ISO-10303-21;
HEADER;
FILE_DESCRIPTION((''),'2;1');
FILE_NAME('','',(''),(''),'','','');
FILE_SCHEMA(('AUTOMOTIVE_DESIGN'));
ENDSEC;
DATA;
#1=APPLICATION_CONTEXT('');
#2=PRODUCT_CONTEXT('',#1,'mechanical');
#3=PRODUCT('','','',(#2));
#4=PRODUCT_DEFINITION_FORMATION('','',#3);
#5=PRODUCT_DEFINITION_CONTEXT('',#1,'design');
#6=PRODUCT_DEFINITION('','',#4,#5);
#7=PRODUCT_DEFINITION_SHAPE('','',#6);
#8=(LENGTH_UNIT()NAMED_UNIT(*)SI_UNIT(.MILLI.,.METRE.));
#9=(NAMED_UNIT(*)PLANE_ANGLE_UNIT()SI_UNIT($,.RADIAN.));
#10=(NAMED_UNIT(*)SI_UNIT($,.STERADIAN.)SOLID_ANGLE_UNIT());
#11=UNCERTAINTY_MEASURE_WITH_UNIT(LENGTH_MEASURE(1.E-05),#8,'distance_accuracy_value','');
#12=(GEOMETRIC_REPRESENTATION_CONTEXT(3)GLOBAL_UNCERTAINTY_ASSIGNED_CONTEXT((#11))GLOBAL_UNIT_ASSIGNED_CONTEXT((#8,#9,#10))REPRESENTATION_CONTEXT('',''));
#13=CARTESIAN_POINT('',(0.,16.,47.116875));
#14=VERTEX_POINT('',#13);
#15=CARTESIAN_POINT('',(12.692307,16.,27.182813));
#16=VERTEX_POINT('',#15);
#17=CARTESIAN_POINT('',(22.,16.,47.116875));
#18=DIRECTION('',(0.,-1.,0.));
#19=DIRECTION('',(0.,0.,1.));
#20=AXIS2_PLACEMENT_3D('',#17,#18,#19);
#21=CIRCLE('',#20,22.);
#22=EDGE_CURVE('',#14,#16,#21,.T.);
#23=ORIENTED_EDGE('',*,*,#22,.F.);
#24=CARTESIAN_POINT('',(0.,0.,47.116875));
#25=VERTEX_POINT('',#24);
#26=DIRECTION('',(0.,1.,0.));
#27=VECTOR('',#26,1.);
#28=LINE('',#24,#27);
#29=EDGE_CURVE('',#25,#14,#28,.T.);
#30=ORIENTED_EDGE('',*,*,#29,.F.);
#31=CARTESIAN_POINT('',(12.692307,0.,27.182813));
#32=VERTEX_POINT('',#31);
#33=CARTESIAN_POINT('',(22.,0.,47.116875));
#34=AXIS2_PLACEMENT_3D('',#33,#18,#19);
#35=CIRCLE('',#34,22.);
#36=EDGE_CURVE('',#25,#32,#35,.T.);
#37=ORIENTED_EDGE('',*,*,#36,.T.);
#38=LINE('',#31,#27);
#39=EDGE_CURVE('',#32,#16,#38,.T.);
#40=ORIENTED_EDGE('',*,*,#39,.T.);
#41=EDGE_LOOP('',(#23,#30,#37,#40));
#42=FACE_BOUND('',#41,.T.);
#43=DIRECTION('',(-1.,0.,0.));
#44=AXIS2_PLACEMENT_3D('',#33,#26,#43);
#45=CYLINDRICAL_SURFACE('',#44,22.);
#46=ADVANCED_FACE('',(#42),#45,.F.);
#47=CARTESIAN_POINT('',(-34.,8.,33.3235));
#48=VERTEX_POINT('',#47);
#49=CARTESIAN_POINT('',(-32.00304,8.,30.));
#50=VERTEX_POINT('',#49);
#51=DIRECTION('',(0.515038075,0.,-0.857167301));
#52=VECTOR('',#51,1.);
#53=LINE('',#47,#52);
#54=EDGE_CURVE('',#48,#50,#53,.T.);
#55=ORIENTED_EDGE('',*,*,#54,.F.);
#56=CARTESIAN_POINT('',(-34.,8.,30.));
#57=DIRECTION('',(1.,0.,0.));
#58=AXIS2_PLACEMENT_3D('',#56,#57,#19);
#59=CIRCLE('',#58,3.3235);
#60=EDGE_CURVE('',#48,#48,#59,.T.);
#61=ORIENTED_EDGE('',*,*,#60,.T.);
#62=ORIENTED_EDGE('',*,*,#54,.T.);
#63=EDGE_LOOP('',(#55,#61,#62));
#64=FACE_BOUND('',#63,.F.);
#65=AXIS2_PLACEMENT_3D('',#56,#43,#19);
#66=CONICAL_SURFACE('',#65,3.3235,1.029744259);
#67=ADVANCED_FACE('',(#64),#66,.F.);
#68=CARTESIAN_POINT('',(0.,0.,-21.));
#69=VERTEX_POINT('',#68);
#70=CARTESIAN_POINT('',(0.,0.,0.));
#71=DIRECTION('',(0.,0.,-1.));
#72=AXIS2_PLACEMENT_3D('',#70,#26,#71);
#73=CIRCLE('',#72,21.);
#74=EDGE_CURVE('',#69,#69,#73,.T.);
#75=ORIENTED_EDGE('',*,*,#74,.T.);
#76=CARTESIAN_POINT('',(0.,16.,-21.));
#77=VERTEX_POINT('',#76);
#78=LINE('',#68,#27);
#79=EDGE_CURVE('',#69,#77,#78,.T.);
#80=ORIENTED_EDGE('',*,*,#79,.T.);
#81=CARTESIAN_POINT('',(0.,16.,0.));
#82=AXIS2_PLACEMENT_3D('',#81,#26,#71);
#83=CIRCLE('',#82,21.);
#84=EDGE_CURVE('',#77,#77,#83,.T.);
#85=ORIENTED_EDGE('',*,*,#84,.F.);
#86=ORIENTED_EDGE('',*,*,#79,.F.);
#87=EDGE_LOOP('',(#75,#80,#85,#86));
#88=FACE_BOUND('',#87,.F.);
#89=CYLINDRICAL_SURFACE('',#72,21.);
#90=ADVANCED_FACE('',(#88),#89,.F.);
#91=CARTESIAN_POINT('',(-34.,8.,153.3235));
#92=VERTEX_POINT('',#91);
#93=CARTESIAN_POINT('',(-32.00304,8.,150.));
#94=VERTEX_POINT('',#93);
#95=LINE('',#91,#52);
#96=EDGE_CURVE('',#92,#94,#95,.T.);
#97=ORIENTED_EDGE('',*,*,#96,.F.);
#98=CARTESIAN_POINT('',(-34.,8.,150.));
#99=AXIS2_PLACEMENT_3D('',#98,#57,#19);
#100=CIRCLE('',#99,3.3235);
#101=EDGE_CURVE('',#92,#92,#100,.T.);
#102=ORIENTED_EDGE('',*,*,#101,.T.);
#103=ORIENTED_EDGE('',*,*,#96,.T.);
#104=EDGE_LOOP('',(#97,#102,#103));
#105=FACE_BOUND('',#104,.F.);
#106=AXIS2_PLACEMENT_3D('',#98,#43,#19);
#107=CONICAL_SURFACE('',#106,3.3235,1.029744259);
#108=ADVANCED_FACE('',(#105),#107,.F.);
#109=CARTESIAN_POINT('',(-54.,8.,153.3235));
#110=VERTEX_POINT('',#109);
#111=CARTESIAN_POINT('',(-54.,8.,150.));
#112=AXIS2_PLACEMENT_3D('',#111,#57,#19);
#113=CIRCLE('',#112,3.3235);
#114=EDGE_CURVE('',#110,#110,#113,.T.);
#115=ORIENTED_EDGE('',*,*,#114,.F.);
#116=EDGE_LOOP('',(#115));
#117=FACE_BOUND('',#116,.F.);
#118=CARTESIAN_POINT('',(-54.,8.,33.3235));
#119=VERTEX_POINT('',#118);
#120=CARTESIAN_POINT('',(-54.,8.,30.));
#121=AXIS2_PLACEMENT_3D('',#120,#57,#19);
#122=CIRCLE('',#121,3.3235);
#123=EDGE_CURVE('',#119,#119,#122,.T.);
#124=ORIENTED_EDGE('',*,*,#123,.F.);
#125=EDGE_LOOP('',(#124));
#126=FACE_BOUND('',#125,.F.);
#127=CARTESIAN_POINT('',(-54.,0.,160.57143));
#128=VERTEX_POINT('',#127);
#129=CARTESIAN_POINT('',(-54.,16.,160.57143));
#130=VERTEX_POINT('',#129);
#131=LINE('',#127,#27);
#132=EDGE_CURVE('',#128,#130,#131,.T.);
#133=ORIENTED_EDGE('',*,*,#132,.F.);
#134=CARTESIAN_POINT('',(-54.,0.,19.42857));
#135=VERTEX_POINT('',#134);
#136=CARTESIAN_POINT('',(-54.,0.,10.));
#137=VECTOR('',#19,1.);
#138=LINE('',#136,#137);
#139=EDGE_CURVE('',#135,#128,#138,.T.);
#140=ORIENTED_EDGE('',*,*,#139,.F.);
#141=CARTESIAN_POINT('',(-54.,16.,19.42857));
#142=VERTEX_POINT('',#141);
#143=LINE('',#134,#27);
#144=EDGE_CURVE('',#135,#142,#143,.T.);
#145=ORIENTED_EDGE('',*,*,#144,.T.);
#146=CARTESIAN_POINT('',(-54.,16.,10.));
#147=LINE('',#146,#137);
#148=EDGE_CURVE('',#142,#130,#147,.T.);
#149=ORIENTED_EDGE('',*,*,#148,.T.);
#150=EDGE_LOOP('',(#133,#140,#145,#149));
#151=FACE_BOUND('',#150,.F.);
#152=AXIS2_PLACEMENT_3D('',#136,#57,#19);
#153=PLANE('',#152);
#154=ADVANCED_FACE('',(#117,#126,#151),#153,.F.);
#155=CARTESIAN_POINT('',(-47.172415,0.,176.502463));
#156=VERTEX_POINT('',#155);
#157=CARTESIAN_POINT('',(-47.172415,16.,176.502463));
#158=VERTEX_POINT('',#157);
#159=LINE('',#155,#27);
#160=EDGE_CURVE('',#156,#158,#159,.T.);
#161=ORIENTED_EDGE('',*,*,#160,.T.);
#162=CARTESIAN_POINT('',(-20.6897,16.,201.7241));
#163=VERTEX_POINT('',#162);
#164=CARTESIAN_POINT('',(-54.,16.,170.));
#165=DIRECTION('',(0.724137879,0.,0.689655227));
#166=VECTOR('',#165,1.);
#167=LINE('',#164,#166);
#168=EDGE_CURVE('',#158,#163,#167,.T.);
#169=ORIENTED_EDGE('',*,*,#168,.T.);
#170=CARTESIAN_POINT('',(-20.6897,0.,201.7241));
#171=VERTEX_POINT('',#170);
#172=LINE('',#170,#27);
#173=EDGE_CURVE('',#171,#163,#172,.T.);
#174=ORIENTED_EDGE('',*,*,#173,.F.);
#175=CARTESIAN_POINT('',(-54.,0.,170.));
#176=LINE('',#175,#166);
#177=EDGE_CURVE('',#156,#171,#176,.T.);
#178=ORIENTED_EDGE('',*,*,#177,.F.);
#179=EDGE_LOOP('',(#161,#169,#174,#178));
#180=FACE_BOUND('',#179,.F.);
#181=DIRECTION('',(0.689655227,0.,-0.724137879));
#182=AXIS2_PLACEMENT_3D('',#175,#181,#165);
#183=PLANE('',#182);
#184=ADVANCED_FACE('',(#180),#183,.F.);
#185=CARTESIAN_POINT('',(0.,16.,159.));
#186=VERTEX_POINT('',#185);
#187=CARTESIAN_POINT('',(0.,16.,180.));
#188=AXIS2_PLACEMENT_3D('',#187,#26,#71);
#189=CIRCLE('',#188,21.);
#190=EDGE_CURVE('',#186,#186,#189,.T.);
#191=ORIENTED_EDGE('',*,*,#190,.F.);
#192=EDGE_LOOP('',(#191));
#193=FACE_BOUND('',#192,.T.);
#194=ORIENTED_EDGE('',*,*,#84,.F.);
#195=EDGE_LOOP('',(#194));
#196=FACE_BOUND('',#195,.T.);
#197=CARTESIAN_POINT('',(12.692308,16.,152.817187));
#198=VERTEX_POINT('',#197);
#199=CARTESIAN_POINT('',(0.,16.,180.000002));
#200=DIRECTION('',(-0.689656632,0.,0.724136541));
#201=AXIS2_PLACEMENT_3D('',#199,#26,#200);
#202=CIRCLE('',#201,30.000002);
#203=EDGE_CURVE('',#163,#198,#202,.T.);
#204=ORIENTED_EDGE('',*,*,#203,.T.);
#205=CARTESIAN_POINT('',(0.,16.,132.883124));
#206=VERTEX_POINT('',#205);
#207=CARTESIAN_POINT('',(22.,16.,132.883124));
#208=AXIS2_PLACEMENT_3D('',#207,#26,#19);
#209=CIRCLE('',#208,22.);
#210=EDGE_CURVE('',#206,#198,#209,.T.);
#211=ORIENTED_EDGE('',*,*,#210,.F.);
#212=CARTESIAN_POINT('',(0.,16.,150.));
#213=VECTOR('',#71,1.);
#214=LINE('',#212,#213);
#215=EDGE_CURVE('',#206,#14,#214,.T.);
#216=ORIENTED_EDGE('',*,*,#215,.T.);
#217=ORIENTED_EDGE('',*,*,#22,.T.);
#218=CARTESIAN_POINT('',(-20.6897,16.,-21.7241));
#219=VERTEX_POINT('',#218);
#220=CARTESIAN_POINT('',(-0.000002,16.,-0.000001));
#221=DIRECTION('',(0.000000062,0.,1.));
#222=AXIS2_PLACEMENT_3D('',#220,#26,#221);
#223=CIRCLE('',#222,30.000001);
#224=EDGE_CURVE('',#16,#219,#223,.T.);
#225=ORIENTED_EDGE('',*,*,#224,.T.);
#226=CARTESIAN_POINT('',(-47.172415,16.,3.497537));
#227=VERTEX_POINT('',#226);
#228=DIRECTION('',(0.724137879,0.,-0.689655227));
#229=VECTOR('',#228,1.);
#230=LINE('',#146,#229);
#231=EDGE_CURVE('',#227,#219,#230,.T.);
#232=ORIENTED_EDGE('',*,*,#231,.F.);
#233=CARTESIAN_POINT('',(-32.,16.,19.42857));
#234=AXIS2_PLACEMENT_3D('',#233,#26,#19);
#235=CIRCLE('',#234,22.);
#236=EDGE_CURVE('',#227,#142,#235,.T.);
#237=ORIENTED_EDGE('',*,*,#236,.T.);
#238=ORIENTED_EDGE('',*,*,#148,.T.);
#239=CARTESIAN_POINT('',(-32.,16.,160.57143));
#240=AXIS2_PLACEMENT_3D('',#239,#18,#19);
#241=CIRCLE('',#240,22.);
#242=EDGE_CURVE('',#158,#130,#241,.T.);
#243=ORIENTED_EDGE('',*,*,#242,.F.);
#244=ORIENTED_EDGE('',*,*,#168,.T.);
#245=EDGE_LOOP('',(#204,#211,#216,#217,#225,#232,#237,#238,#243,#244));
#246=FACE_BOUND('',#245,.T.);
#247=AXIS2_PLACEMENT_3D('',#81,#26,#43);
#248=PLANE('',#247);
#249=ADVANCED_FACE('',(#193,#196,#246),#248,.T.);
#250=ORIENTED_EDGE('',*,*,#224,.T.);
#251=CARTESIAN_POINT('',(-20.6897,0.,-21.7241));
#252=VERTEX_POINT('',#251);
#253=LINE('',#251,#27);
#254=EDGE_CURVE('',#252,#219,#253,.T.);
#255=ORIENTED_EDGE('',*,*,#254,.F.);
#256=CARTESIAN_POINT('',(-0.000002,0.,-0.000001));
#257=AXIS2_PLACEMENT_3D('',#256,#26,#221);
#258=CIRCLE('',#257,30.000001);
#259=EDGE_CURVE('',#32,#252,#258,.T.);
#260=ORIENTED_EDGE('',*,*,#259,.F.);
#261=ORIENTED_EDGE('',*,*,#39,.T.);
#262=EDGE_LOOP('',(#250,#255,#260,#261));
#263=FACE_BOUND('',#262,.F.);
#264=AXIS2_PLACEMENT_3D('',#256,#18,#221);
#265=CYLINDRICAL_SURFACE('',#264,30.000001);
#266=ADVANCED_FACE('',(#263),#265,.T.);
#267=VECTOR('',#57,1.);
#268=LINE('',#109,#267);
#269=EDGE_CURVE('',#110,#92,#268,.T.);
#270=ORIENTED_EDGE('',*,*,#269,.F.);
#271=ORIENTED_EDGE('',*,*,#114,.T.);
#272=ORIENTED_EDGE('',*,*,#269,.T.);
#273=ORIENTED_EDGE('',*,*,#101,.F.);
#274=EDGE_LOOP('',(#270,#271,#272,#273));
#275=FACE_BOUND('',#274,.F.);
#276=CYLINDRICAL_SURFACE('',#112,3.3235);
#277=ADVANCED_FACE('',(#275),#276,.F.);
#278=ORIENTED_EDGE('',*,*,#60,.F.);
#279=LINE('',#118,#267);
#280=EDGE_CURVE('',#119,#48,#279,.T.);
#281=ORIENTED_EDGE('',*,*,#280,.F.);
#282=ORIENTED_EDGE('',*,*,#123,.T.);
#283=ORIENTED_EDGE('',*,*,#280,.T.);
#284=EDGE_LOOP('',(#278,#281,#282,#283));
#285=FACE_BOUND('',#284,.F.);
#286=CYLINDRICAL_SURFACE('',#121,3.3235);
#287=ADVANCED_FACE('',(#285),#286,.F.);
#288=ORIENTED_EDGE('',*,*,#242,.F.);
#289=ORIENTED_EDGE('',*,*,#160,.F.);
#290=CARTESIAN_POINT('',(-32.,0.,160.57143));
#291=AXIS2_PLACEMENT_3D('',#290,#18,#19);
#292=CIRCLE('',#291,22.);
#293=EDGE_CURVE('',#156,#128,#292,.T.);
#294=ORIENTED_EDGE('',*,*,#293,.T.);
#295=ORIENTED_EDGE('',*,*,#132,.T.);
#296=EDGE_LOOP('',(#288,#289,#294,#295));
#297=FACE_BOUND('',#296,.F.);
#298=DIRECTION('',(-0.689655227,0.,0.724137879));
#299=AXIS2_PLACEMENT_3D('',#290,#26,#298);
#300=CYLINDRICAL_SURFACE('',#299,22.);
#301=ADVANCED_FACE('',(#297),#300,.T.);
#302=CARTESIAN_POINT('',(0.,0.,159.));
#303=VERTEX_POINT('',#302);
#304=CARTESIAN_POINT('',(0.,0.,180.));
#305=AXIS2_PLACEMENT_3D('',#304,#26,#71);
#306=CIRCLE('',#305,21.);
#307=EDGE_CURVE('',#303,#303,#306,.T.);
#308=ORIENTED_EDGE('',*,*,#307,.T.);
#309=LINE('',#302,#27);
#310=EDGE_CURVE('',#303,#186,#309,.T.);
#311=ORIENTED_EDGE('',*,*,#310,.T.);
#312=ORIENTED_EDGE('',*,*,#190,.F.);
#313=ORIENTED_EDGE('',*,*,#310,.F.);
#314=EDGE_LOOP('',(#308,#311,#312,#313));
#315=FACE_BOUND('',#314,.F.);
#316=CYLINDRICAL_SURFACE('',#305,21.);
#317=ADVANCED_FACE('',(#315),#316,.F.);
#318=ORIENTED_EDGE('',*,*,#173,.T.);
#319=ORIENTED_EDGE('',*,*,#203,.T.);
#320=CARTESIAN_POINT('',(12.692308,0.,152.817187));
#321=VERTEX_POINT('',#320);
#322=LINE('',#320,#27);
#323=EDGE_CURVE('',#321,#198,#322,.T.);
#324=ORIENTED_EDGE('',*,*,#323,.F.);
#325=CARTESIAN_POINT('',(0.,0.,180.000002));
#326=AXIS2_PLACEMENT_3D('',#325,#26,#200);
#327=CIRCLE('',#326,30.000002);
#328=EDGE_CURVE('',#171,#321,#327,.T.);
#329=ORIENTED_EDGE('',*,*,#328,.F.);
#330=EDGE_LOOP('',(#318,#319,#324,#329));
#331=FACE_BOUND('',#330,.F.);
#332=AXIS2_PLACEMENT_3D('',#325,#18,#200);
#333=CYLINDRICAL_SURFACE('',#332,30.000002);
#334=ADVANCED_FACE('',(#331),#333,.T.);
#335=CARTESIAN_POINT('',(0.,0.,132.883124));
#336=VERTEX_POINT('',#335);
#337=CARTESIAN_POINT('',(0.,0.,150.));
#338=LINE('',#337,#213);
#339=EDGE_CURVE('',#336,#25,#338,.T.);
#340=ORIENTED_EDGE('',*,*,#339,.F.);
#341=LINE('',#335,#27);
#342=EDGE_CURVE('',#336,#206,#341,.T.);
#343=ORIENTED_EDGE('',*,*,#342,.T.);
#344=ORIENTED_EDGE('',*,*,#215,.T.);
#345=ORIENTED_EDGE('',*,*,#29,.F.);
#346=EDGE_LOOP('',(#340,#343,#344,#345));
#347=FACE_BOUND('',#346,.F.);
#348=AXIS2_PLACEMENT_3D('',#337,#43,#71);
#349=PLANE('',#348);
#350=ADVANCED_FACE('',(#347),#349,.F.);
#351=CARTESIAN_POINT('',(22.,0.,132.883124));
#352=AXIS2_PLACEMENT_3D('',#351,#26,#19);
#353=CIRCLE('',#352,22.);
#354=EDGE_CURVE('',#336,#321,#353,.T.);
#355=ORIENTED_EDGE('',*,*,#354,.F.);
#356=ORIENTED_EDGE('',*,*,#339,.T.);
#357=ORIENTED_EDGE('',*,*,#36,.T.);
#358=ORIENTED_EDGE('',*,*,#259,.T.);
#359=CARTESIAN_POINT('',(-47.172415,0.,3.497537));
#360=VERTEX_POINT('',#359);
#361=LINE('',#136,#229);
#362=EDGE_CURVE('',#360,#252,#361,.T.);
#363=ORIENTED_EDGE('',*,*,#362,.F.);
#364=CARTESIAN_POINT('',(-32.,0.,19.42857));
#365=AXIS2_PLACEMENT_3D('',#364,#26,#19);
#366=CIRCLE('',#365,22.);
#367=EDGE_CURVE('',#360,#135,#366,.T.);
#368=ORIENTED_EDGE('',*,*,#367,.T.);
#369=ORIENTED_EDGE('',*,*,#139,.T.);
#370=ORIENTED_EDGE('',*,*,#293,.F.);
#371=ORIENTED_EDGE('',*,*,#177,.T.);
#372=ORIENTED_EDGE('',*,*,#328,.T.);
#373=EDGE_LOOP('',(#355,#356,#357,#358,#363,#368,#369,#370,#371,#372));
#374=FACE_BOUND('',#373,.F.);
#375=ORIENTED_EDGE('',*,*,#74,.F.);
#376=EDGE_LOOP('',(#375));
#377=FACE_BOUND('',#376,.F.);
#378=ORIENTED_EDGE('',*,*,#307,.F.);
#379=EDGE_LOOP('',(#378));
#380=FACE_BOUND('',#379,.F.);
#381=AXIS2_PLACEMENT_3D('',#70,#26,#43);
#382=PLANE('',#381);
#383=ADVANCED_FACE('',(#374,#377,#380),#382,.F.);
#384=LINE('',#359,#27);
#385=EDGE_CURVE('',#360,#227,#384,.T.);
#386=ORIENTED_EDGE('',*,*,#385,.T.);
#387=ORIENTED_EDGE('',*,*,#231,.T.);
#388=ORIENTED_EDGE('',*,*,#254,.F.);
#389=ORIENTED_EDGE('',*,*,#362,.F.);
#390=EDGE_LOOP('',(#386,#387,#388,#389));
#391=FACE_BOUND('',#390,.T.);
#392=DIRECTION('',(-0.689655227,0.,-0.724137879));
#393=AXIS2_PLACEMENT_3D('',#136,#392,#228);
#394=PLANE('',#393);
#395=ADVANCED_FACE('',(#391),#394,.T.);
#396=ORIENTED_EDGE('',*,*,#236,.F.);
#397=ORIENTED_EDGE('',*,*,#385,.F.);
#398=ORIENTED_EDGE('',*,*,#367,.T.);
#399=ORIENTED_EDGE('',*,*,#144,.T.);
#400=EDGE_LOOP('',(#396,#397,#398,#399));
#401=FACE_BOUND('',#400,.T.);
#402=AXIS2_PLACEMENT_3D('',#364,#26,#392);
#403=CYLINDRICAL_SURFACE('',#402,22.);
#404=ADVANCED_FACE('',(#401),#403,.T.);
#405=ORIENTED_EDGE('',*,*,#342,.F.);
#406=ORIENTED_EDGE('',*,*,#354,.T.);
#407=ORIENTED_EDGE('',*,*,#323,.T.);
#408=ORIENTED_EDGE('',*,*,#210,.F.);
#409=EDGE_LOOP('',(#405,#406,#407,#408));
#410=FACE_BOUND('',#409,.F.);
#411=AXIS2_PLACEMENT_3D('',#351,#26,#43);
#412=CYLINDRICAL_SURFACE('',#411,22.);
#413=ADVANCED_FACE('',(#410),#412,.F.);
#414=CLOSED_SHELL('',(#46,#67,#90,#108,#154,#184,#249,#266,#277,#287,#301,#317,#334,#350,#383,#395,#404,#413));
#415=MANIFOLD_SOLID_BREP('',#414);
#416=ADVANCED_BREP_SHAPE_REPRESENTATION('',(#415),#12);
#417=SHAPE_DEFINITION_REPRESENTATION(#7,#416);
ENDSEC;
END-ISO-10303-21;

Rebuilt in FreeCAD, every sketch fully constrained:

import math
import FreeCAD as App
import Part
import Sketcher

V = App.Vector


def edges_at(feature, points):
    """Names of the edges that pass closest to the given points."""
    edges = feature.Shape.Edges
    near = lambda p: min(range(len(edges)), key=lambda i: edges[i].distToShape(Part.Vertex(*p))[0])
    return sorted({f"Edge{near(p) + 1}" for p in points})

doc = App.newDocument("Part")
body = doc.addObject("PartDesign::Body", "Body")

sketch1 = doc.addObject("Sketcher::SketchObject", "Sketch")
body.addObject(sketch1)
sketch1.AttachmentSupport = (doc.XZ_Plane, [""])
sketch1.MapMode = "FlatFace"
sketch1.addGeometry(Part.LineSegment(V(0, 150, 0), V(0, 30, 0)), False)
sketch1.addGeometry(Part.ArcOfCircle(Part.Circle(V(0, 0, 0), V(0, 0, 1), 30), math.radians(-134), math.radians(90)), False)
sketch1.addGeometry(Part.LineSegment(V(-21, -22, 0), V(-54, 10, 0)), False)
sketch1.addGeometry(Part.LineSegment(V(-54, 10, 0), V(-54, 170, 0)), False)
sketch1.addGeometry(Part.LineSegment(V(-54, 170, 0), V(-21, 202, 0)), False)
sketch1.addGeometry(Part.ArcOfCircle(Part.Circle(V(0, 180, 0), V(0, 0, 1), 30), math.radians(-90), math.radians(134)), False)
sketch1.addConstraint(Sketcher.Constraint("Coincident", 0, 2, 1, 2))
sketch1.addConstraint(Sketcher.Constraint("Tangent", 1, 1, 2, 1))
sketch1.addConstraint(Sketcher.Constraint("Coincident", 2, 2, 3, 1))
sketch1.addConstraint(Sketcher.Constraint("Coincident", 3, 2, 4, 1))
sketch1.addConstraint(Sketcher.Constraint("Tangent", 4, 2, 5, 2))
sketch1.addConstraint(Sketcher.Constraint("Coincident", 5, 1, 0, 1))
sketch1.addConstraint(Sketcher.Constraint("Vertical", 0))
sketch1.addConstraint(Sketcher.Constraint("Vertical", 3))
sketch1.addConstraint(Sketcher.Constraint("Coincident", 1, 3, -1, 1))
sketch1.addConstraint(Sketcher.Constraint("Equal", 1, 5))
sketch1.addConstraint(Sketcher.Constraint("PointOnObject", 5, 3, -2))
sketch1.addConstraint(Sketcher.Constraint("PointOnObject", 0, 2, -2))
sketch1.addConstraint(Sketcher.Constraint("Vertical", 1, 1, 4, 2))
sketch1.addConstraint(Sketcher.Constraint("Radius", 1, 30.0))
sketch1.addConstraint(Sketcher.Constraint("DistanceY", 0, 2, 0, 1, 120.0))
sketch1.addConstraint(Sketcher.Constraint("DistanceY", 3, 1, 3, 2, 160.0))
sketch1.addConstraint(Sketcher.Constraint("Distance", 2, 46.0))
pad1 = doc.addObject("PartDesign::Pad", "Pad")
body.addObject(pad1)
pad1.Profile = sketch1
pad1.Length = 16
pad1.Reversed = True

sketch2 = doc.addObject("Sketcher::SketchObject", "Sketch001")
body.addObject(sketch2)
sketch2.AttachmentSupport = (doc.XZ_Plane, [""])
sketch2.MapMode = "FlatFace"
sketch2.addGeometry(Part.Circle(V(0, 180, 0), V(0, 0, 1), 21), False)
sketch2.addGeometry(Part.Circle(V(0, 0, 0), V(0, 0, 1), 21), False)
sketch2.addConstraint(Sketcher.Constraint("Coincident", 1, 3, -1, 1))
sketch2.addConstraint(Sketcher.Constraint("Equal", 0, 1))
sketch2.addConstraint(Sketcher.Constraint("PointOnObject", 0, 3, -2))
sketch2.addConstraint(Sketcher.Constraint("Diameter", 0, 42.0))
sketch2.addConstraint(Sketcher.Constraint("DistanceY", -1, 1, 0, 3, 180.0))
doc.recompute()
hole = doc.addObject("PartDesign::Hole", "Hole")
body.addObject(hole)
hole.Profile = sketch2
hole.ThreadType = "None"
hole.Diameter = 42
hole.DepthType = "Dimension"
hole.Depth = 16
hole.DrillPoint = "Flat"
doc.recompute()

fillet = doc.addObject("PartDesign::Fillet", "Fillet")
body.addObject(fillet)
fillet.Base = (hole, edges_at(hole, [(0, 8, 30), (0, 8, 150)]))
fillet.Radius = 22
doc.recompute()

fillet2 = doc.addObject("PartDesign::Fillet", "Fillet001")
body.addObject(fillet2)
fillet2.Base = (fillet, edges_at(fillet, [(-54, 8, 10), (-54, 8, 170)]))
fillet2.Radius = 22

sketch3 = doc.addObject("Sketcher::SketchObject", "Sketch002")
body.addObject(sketch3)
sketch3.AttachmentSupport = (doc.YZ_Plane, [""])
sketch3.MapMode = "FlatFace"
sketch3.AttachmentOffset = App.Placement(V(0, 0, -54), App.Rotation())
sketch3.addGeometry(Part.Circle(V(8, 30, 0), V(0, 0, 1), 3.3), False)
sketch3.addGeometry(Part.Circle(V(8, 150, 0), V(0, 0, 1), 3.3), False)
sketch3.addConstraint(Sketcher.Constraint("Equal", 0, 1))
sketch3.addConstraint(Sketcher.Constraint("Vertical", 0, 3, 1, 3))
sketch3.addConstraint(Sketcher.Constraint("Diameter", 0, 6.647))
sketch3.addConstraint(Sketcher.Constraint("DistanceX", -1, 1, 0, 3, 8.0))
sketch3.addConstraint(Sketcher.Constraint("DistanceY", -1, 1, 0, 3, 30.0))
sketch3.addConstraint(Sketcher.Constraint("DistanceY", -1, 1, 1, 3, 150.0))
doc.recompute()
hole2 = doc.addObject("PartDesign::Hole", "Hole001")
body.addObject(hole2)
hole2.Profile = sketch3
hole2.ThreadType = "None"
hole2.Diameter = 6.647
hole2.DepthType = "Dimension"
hole2.Depth = 20
hole2.DrillPoint = "Angled"
hole2.DrillPointAngle = 118
hole2.Reversed = True

doc.recompute()
